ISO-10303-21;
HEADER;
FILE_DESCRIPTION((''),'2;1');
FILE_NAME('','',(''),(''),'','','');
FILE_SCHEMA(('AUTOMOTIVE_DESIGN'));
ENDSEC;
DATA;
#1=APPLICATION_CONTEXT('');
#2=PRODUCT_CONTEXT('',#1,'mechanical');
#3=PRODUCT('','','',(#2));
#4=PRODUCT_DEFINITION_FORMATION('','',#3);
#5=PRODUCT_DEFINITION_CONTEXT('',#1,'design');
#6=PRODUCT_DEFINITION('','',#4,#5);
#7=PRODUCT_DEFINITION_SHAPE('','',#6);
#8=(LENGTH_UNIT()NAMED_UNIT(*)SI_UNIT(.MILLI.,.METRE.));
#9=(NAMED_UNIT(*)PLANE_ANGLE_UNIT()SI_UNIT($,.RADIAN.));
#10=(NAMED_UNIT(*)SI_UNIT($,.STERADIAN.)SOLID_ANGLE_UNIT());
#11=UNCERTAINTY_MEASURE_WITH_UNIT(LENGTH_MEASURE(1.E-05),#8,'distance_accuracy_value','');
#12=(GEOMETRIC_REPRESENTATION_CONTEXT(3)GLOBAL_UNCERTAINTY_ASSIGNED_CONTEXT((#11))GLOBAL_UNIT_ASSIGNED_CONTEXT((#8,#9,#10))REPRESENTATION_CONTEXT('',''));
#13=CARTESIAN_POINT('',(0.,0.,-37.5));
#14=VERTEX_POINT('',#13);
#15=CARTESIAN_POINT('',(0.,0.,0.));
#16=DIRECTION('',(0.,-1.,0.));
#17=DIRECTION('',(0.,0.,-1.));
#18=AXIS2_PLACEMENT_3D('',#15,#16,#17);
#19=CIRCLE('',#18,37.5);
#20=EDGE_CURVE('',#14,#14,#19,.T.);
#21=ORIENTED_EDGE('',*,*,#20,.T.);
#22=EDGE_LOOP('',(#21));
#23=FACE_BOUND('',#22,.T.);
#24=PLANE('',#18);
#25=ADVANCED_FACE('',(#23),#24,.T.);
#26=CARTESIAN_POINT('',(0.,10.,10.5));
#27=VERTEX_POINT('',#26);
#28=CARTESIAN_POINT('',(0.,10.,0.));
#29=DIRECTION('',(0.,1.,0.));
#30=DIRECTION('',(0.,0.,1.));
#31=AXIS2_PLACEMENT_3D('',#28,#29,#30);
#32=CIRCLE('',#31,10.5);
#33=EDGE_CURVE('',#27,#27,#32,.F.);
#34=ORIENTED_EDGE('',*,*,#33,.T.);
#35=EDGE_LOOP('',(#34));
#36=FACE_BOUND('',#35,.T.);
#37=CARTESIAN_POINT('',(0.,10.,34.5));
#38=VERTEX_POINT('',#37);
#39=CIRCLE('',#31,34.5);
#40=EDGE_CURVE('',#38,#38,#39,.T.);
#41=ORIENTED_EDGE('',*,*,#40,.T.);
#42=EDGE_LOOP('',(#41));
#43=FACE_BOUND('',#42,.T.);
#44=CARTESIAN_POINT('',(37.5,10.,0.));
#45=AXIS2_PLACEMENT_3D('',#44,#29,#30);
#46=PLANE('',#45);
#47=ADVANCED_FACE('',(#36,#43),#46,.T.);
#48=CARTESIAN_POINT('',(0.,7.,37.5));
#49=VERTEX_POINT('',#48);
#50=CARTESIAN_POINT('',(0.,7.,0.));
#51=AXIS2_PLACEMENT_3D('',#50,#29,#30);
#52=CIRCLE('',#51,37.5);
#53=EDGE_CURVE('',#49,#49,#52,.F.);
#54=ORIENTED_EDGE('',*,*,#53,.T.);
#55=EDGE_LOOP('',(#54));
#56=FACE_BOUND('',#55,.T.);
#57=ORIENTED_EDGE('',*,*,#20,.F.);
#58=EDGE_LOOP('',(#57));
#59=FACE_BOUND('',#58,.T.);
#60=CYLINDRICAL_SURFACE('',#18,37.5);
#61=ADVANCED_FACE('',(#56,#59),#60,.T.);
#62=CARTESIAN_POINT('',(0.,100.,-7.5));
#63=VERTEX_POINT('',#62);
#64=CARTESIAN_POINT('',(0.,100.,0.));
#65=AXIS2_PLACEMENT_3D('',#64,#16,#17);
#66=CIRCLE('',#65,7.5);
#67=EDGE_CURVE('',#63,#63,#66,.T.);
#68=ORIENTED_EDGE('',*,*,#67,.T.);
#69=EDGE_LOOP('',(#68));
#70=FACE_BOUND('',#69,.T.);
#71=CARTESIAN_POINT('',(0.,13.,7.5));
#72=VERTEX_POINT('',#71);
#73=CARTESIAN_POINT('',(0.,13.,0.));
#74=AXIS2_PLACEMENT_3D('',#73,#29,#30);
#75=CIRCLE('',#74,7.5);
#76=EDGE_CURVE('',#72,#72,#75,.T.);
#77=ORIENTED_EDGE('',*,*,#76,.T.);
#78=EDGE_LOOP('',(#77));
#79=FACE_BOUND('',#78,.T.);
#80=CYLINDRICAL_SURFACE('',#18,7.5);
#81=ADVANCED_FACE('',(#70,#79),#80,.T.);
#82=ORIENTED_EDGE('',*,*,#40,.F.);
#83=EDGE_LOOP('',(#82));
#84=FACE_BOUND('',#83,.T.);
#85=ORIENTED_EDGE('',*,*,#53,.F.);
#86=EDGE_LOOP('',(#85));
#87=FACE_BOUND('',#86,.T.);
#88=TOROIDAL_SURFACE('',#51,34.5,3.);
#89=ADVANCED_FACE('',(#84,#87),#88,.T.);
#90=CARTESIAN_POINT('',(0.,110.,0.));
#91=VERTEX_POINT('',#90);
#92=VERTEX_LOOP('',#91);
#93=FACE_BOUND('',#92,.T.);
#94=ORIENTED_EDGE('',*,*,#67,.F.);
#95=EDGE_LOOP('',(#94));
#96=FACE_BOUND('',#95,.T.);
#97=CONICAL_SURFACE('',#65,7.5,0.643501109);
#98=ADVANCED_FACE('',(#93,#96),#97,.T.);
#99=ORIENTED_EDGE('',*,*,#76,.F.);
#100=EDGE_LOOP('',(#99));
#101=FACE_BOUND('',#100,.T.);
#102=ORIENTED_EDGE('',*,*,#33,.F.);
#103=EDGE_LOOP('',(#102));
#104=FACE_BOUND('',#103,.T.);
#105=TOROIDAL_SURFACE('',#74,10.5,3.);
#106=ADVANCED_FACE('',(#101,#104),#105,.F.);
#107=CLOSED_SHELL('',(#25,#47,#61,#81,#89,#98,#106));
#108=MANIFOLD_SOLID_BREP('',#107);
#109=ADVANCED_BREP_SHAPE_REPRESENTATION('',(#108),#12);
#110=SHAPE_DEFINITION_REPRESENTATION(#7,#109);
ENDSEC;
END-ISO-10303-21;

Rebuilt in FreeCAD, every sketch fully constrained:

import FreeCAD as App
import Part
import Sketcher

V = App.Vector


def edges_at(feature, points):
    """Names of the edges that pass closest to the given points."""
    edges = feature.Shape.Edges
    near = lambda p: min(range(len(edges)), key=lambda i: edges[i].distToShape(Part.Vertex(*p))[0])
    return sorted({f"Edge{near(p) + 1}" for p in points})

doc = App.newDocument("Part")
body = doc.addObject("PartDesign::Body", "Body")

sketch1 = body.newObject("Sketcher::SketchObject", "Sketch")
sketch1.AttachmentSupport = (doc.getObject("XY_Plane"), [""])
sketch1.MapMode = "FlatFace"
sketch1.addGeometry([
    Part.LineSegment(V(0, 0, 0), V(37.5, 0, 0)),
    Part.LineSegment(V(37.5, 0, 0), V(37.5, 10, 0)),
    Part.LineSegment(V(37.5, 10, 0), V(7.5, 10, 0)),
    Part.LineSegment(V(7.5, 10, 0), V(7.5, 100, 0)),
    Part.LineSegment(V(7.5, 100, 0), V(0, 110, 0)),
    Part.LineSegment(V(0, 110, 0), V(0, 0, 0)),
], False)
sketch1.addConstraint([
    Sketcher.Constraint("Coincident", 0, 2, 1, 1),
    Sketcher.Constraint("Coincident", 1, 2, 2, 1),
    Sketcher.Constraint("Coincident", 2, 2, 3, 1),
    Sketcher.Constraint("Coincident", 3, 2, 4, 1),
    Sketcher.Constraint("Coincident", 4, 2, 5, 1),
    Sketcher.Constraint("Coincident", 5, 2, 0, 1),
    Sketcher.Constraint("Horizontal", 0),
    Sketcher.Constraint("Vertical", 1),
    Sketcher.Constraint("Horizontal", 2),
    Sketcher.Constraint("Vertical", 3),
    Sketcher.Constraint("Vertical", 5),
    Sketcher.Constraint("Coincident", 5, 2, -1, 1),
    Sketcher.Constraint("DistanceX", 2, 2, 2, 1, 30.0),
    Sketcher.Constraint("DistanceY", 1, 1, 1, 2, 10.0),
    Sketcher.Constraint("DistanceY", 3, 1, 3, 2, 90.0),
    Sketcher.Constraint("DistanceY", 5, 2, 5, 1, 110.0),
    Sketcher.Constraint("DistanceX", 0, 1, 0, 2, 37.5),
])
revolution = body.newObject("PartDesign::Revolution", "Revolution")
revolution.Profile = sketch1
revolution.ReferenceAxis = (sketch1, ["V_Axis"])
revolution.Angle = 360
doc.recompute()

fillet = body.newObject("PartDesign::Fillet", "Fillet")
fillet.Base = (revolution, edges_at(revolution, [(0, 10, 7.5), (0, 10, 37.5)]))
fillet.Radius = 3

doc.recompute()
